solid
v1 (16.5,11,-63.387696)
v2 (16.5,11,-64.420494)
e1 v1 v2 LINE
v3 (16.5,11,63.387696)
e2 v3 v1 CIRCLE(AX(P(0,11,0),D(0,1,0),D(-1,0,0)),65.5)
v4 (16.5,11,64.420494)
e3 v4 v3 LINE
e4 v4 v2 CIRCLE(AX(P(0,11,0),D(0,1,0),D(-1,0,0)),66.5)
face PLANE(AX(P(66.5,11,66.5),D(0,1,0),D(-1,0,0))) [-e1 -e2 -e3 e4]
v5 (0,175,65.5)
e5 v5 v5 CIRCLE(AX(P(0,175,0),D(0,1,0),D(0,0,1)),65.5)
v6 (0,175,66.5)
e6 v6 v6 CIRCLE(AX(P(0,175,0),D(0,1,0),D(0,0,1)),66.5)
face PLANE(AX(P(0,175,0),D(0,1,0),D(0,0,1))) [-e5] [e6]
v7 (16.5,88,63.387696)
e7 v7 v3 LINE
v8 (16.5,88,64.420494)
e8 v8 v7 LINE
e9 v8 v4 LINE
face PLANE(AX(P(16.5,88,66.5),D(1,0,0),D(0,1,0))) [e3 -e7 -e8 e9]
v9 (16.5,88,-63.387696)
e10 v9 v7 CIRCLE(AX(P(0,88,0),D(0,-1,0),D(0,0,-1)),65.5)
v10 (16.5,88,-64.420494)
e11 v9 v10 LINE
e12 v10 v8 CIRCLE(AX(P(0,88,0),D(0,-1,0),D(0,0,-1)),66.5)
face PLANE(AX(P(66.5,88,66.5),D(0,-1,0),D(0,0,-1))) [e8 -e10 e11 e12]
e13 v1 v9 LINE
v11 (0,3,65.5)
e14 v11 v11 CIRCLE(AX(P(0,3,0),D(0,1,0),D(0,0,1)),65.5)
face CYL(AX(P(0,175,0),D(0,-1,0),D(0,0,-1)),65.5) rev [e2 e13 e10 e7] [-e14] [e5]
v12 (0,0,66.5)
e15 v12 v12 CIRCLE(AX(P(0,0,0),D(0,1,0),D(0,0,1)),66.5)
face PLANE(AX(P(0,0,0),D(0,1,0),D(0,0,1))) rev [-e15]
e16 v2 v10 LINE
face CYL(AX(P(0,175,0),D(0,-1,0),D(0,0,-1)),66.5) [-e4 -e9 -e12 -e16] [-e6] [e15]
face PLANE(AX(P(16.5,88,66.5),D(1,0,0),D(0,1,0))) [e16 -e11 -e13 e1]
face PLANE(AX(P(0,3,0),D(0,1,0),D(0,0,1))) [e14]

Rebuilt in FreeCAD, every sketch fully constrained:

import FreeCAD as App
import Part
import Sketcher
from FreeCAD import Vector
Q = App.Units.Quantity


def add_polygon(sketch, points):
    """Adds a closed chain of lines whose ends are joined by coincident constraints."""
    first, n = sketch.GeometryCount, len(points)
    for a, b in zip(points, points[1:] + points[:1]):
        sketch.addGeometry(Part.LineSegment(App.Vector(*a, 0), App.Vector(*b, 0)), False)
    for i in range(n):
        sketch.addConstraint(Sketcher.Constraint("Coincident", first + i, 2, first + (i + 1) % n, 1))

doc = App.newDocument("Part")
params = doc.addObject("Spreadsheet::Sheet", "Params")
for row, (alias, value) in enumerate([
    ("sketch1_diameter", "133 mm"),
    ("sketch1_diameter2", "131 mm"),
    ("pad1_length", "175 mm"),
    ("sketch2_diameter", "131 mm"),
    ("pad2_length", "3 mm"),
    ("sketch3_width", "50 mm"),
    ("sketch3_height", "77 mm"),
], start=1):
    params.set(f"A{row}", alias)
    params.set(f"B{row}", "=" + value)
    params.setAlias(f"B{row}", alias)

body = doc.addObject("PartDesign::Body", "Body")

sketch1 = body.newObject("Sketcher::SketchObject", "Sketch")
sketch1.AttachmentSupport = (doc.getObject("XZ_Plane"), [""])
sketch1.MapMode = "FlatFace"
sketch1.addGeometry(Part.Circle(Vector(0, 0, 0), Vector(0, 0, 1), 66), False)
sketch1.addGeometry(Part.Circle(Vector(0, 0, 0), Vector(0, 0, 1), 66), False)
sketch1.addConstraint(Sketcher.Constraint("Coincident", 0, 3, -1, 1))
sketch1.addConstraint(Sketcher.Constraint("Coincident", 1, 3, -1, 1))
sketch1.addConstraint(Sketcher.Constraint("Diameter", 0, Q("133 mm")))
sketch1.addConstraint(Sketcher.Constraint("Diameter", 1, Q("131 mm")))
sketch1.setExpression("Constraints[2]", "Params.sketch1_diameter")
sketch1.setExpression("Constraints[3]", "Params.sketch1_diameter2")
pad1 = body.newObject("PartDesign::Pad", "Pad")
pad1.Profile = sketch1
pad1.setExpression("Length", "Params.pad1_length")
pad1.Reversed = True

sketch2 = body.newObject("Sketcher::SketchObject", "Sketch001")
sketch2.AttachmentSupport = (doc.getObject("XZ_Plane"), [""])
sketch2.MapMode = "FlatFace"
sketch2.addGeometry(Part.Circle(Vector(0, 0, 0), Vector(0, 0, 1), 66), False)
sketch2.addConstraint(Sketcher.Constraint("Coincident", 0, 3, -1, 1))
sketch2.addConstraint(Sketcher.Constraint("Diameter", 0, Q("131 mm")))
sketch2.setExpression("Constraints[1]", "Params.sketch2_diameter")
pad2 = body.newObject("PartDesign::Pad", "Pad001")
pad2.Profile = sketch2
pad2.setExpression("Length", "Params.pad2_length")
pad2.Reversed = True

sketch3 = body.newObject("Sketcher::SketchObject", "Sketch002")
sketch3.AttachmentSupport = (doc.getObject("XY_Plane"), [""])
sketch3.MapMode = "FlatFace"
add_polygon(sketch3, [(16, 88), (16, 11), (66, 11), (66, 88)])
sketch3.addConstraint(Sketcher.Constraint("Vertical", 0))
sketch3.addConstraint(Sketcher.Constraint("Horizontal", 1))
sketch3.addConstraint(Sketcher.Constraint("Vertical", 2))
sketch3.addConstraint(Sketcher.Constraint("Horizontal", 3))
sketch3.addConstraint(Sketcher.Constraint("DistanceX", 1, 1, 1, 2, Q("50 mm")))
sketch3.addConstraint(Sketcher.Constraint("DistanceY", 0, 2, 0, 1, Q("77 mm")))
sketch3.addConstraint(Sketcher.Constraint("DistanceY", -1, 1, 0, 2, Q("11 mm")))
sketch3.addConstraint(Sketcher.Constraint("DistanceX", -1, 1, 0, 2, Q("16.5 mm")))
sketch3.setExpression("Constraints[8]", "Params.sketch3_width")
sketch3.setExpression("Constraints[9]", "Params.sketch3_height")
pocket1 = body.newObject("PartDesign::Pocket", "Pocket")
pocket1.Profile = sketch3
pocket1.Type = "ThroughAll"
pocket1.Midplane = True

doc.recompute()
